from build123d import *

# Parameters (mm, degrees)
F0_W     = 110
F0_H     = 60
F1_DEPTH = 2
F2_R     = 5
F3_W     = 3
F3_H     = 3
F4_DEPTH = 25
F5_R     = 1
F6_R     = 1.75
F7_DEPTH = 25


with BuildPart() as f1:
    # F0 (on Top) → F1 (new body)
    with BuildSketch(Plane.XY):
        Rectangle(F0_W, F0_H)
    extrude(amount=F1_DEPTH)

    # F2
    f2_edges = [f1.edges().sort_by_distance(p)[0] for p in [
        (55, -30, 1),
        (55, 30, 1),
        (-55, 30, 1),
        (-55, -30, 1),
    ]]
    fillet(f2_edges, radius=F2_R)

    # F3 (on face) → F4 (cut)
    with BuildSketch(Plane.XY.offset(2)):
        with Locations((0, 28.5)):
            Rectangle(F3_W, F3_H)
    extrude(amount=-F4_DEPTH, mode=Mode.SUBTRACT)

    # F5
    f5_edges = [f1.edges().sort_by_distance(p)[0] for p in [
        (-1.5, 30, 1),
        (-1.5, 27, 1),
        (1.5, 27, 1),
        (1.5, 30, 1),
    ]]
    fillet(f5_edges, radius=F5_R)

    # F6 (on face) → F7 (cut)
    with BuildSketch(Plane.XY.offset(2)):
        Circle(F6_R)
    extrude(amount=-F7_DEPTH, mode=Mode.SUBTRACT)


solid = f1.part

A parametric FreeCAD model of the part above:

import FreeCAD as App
import Part
import Sketcher
from FreeCAD import Vector


def edges_at(feature, points):
    """Names of the edges that pass closest to the given points."""
    edges = feature.Shape.Edges
    near = lambda p: min(range(len(edges)), key=lambda i: edges[i].distToShape(Part.Vertex(*p))[0])
    return sorted({f"Edge{near(p) + 1}" for p in points})

doc = App.newDocument("Part")
body = doc.addObject("PartDesign::Body", "Body")

sketch1 = body.newObject("Sketcher::SketchObject", "Sketch")
sketch1.AttachmentSupport = (doc.getObject("XY_Plane"), [""])
sketch1.MapMode = "FlatFace"
sketch1.addGeometry(Part.LineSegment(Vector(-55, 30, 0), Vector(-55, -30, 0)), False)
sketch1.addGeometry(Part.LineSegment(Vector(-55, -30, 0), Vector(55, -30, 0)), False)
sketch1.addGeometry(Part.LineSegment(Vector(55, -30, 0), Vector(55, 30, 0)), False)
sketch1.addGeometry(Part.LineSegment(Vector(55, 30, 0), Vector(-55, 30, 0)), False)
sketch1.addConstraint(Sketcher.Constraint("Coincident", 0, 2, 1, 1))
sketch1.addConstraint(Sketcher.Constraint("Coincident", 1, 2, 2, 1))
sketch1.addConstraint(Sketcher.Constraint("Coincident", 2, 2, 3, 1))
sketch1.addConstraint(Sketcher.Constraint("Coincident", 3, 2, 0, 1))
sketch1.addConstraint(Sketcher.Constraint("Vertical", 0))
sketch1.addConstraint(Sketcher.Constraint("Horizontal", 1))
sketch1.addConstraint(Sketcher.Constraint("Vertical", 2))
sketch1.addConstraint(Sketcher.Constraint("Horizontal", 3))
sketch1.addConstraint(Sketcher.Constraint("Symmetric", 0, 2, 2, 2, -1, 1))
sketch1.addConstraint(Sketcher.Constraint("DistanceX", 1, 1, 1, 2, 110.0))
sketch1.addConstraint(Sketcher.Constraint("DistanceY", 0, 2, 0, 1, 60.0))
pad1 = body.newObject("PartDesign::Pad", "Pad")
pad1.Profile = sketch1
pad1.Length = 2
doc.recompute()

fillet = body.newObject("PartDesign::Fillet", "Fillet")
fillet.Base = (pad1, edges_at(pad1, [
    (55, -30, 1),
    (55, 30, 1),
    (-55, 30, 1),
    (-55, -30, 1),
]))
fillet.Radius = 5

sketch2 = body.newObject("Sketcher::SketchObject", "Sketch001")
sketch2.AttachmentSupport = (doc.getObject("XY_Plane"), [""])
sketch2.MapMode = "FlatFace"
sketch2.AttachmentOffset = App.Placement(Vector(0, 0, 2), App.Rotation())
sketch2.addGeometry(Part.LineSegment(Vector(-1.5, 30, 0), Vector(-1.5, 27, 0)), False)
sketch2.addGeometry(Part.LineSegment(Vector(-1.5, 27, 0), Vector(1.5, 27, 0)), False)
sketch2.addGeometry(Part.LineSegment(Vector(1.5, 27, 0), Vector(1.5, 30, 0)), False)
sketch2.addGeometry(Part.LineSegment(Vector(1.5, 30, 0), Vector(-1.5, 30, 0)), False)
sketch2.addConstraint(Sketcher.Constraint("Coincident", 0, 2, 1, 1))
sketch2.addConstraint(Sketcher.Constraint("Coincident", 1, 2, 2, 1))
sketch2.addConstraint(Sketcher.Constraint("Coincident", 2, 2, 3, 1))
sketch2.addConstraint(Sketcher.Constraint("Coincident", 3, 2, 0, 1))
sketch2.addConstraint(Sketcher.Constraint("Vertical", 0))
sketch2.addConstraint(Sketcher.Constraint("Horizontal", 1))
sketch2.addConstraint(Sketcher.Constraint("Vertical", 2))
sketch2.addConstraint(Sketcher.Constraint("Horizontal", 3))
sketch2.addConstraint(Sketcher.Constraint("Equal", 3, 0))
sketch2.addConstraint(Sketcher.Constraint("DistanceX", 1, 1, 1, 2, 3.0))
sketch2.addConstraint(Sketcher.Constraint("DistanceY", -1, 1, 0, 2, 27.0))
sketch2.addConstraint(Sketcher.Constraint("DistanceX", 0, 2, -1, 1, 1.5))
pocket1 = body.newObject("PartDesign::Pocket", "Pocket")
pocket1.Profile = sketch2
pocket1.Length = 25
doc.recompute()

fillet2 = body.newObject("PartDesign::Fillet", "Fillet001")
fillet2.Base = (pocket1, edges_at(pocket1, [
    (-1.5, 30, 1),
    (-1.5, 27, 1),
    (1.5, 27, 1),
    (1.5, 30, 1),
]))
fillet2.Radius = 1

sketch3 = body.newObject("Sketcher::SketchObject", "Sketch002")
sketch3.AttachmentSupport = (doc.getObject("XY_Plane"), [""])
sketch3.MapMode = "FlatFace"
sketch3.AttachmentOffset = App.Placement(Vector(0, 0, 2), App.Rotation())
sketch3.addGeometry(Part.Circle(Vector(0, 0, 0), Vector(0, 0, 1), 1.75), False)
sketch3.addConstraint(Sketcher.Constraint("Coincident", 0, 3, -1, 1))
sketch3.addConstraint(Sketcher.Constraint("Diameter", 0, 3.5))
pocket2 = body.newObject("PartDesign::Pocket", "Pocket001")
pocket2.Profile = sketch3
pocket2.Length = 25

doc.recompute()
